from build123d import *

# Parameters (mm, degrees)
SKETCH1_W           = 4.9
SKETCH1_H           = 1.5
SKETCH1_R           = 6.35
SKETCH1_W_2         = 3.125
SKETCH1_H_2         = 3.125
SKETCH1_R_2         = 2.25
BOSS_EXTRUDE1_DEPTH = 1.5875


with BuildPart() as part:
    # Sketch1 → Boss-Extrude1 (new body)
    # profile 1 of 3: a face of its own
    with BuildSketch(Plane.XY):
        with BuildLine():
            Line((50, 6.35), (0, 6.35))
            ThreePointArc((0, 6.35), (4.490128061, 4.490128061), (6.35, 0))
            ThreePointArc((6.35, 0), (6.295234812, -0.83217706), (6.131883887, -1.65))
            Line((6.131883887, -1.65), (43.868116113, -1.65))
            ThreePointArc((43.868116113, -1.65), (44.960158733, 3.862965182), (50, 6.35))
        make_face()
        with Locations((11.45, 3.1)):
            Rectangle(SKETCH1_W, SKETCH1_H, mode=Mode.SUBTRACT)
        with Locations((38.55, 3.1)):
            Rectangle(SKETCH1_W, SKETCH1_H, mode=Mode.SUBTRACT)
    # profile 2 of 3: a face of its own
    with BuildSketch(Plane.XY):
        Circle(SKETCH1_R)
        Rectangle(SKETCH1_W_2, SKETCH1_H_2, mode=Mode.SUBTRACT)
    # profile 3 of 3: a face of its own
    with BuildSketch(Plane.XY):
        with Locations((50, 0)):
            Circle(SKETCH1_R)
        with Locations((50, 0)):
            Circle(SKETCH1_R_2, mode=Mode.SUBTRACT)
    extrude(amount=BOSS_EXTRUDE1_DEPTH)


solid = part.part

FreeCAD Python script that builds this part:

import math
import FreeCAD as App
import Part
import Sketcher


def add_polygon(sketch, points):
    """Adds a closed chain of lines whose ends are joined by coincident constraints."""
    first, n = sketch.GeometryCount, len(points)
    for a, b in zip(points, points[1:] + points[:1]):
        sketch.addGeometry(Part.LineSegment(App.Vector(*a, 0), App.Vector(*b, 0)), False)
    for i in range(n):
        sketch.addConstraint(Sketcher.Constraint("Coincident", first + i, 2, first + (i + 1) % n, 1))

doc = App.newDocument("Part")
body = doc.addObject("PartDesign::Body", "Body")

# Sketch on XY plane
sketch1 = body.newObject("Sketcher::SketchObject", "Sketch")
sketch1.AttachmentSupport = (doc.getObject("XY_Plane"), [""])
sketch1.MapMode = "FlatFace"
sketch1.addGeometry(Part.LineSegment(App.Vector(50, 6.35, 0), App.Vector(0, 6.35, 0)), False)  # 0
sketch1.addGeometry(Part.ArcOfCircle(Part.Circle(App.Vector(0, 0, 0), App.Vector(0, 0, 1), 6.35), math.radians(90), math.radians(344.939282)), False)  # 1
sketch1.addGeometry(Part.LineSegment(App.Vector(6.131884, -1.65, 0), App.Vector(43.868116, -1.65, 0)), False)  # 2
sketch1.addGeometry(Part.ArcOfCircle(Part.Circle(App.Vector(50, 0, 0), App.Vector(0, 0, 1), 6.35), math.radians(-164.939282), math.radians(90)), False)  # 3
add_polygon(sketch1, [(13.9, 2.35), (9, 2.35), (9, 3.85), (13.9, 3.85)])  # lines 4-7
add_polygon(sketch1, [(41, 2.35), (36.1, 2.35), (36.1, 3.85), (41, 3.85)])  # lines 8-11
sketch1.addGeometry(Part.Circle(App.Vector(50, 0, 0), App.Vector(0, 0, 1), 2.25), False)  # 12
add_polygon(sketch1, [(-1.5625, -1.5625), (-1.5625, 1.5625), (1.5625, 1.5625), (1.5625, -1.5625)])  # lines 13-16
sketch1.addConstraint(Sketcher.Constraint("Tangent", 0, 2, 1, 1))
sketch1.addConstraint(Sketcher.Constraint("Coincident", 1, 2, 2, 1))
sketch1.addConstraint(Sketcher.Constraint("Coincident", 2, 2, 3, 1))
sketch1.addConstraint(Sketcher.Constraint("Tangent", 3, 2, 0, 1))
sketch1.addConstraint(Sketcher.Constraint("Horizontal", 0))
sketch1.addConstraint(Sketcher.Constraint("Horizontal", 2))
sketch1.addConstraint(Sketcher.Constraint("Horizontal", 4))
sketch1.addConstraint(Sketcher.Constraint("Vertical", 5))
sketch1.addConstraint(Sketcher.Constraint("Horizontal", 6))
sketch1.addConstraint(Sketcher.Constraint("Vertical", 7))
sketch1.addConstraint(Sketcher.Constraint("Horizontal", 8))
sketch1.addConstraint(Sketcher.Constraint("Vertical", 9))
sketch1.addConstraint(Sketcher.Constraint("Horizontal", 10))
sketch1.addConstraint(Sketcher.Constraint("Vertical", 11))
sketch1.addConstraint(Sketcher.Constraint("Vertical", 13))
sketch1.addConstraint(Sketcher.Constraint("Horizontal", 14))
sketch1.addConstraint(Sketcher.Constraint("Vertical", 15))
sketch1.addConstraint(Sketcher.Constraint("Horizontal", 16))
sketch1.addConstraint(Sketcher.Constraint("Coincident", 1, 3, -1, 1))
sketch1.addConstraint(Sketcher.Constraint("Coincident", 12, 3, 3, 3))
sketch1.addConstraint(Sketcher.Constraint("Equal", 1, 3))
sketch1.addConstraint(Sketcher.Constraint("Symmetric", 13, 2, 15, 2, -1, 1))
sketch1.addConstraint(Sketcher.Constraint("Horizontal", 7, 2, 8, 2))
sketch1.addConstraint(Sketcher.Constraint("Horizontal", 6, 2, 9, 2))
sketch1.addConstraint(Sketcher.Constraint("Equal", 6, 8))
sketch1.addConstraint(Sketcher.Constraint("Equal", 16, 13))
sketch1.addConstraint(Sketcher.Constraint("Diameter", 12, 4.5))
sketch1.addConstraint(Sketcher.Constraint("DistanceX", 0, 2, 0, 1, 50.0))
sketch1.addConstraint(Sketcher.Constraint("Radius", 1, 6.35))
sketch1.addConstraint(Sketcher.Constraint("DistanceX", 4, 2, 4, 1, 4.9))
sketch1.addConstraint(Sketcher.Constraint("DistanceY", 5, 1, 5, 2, 1.5))
sketch1.addConstraint(Sketcher.Constraint("DistanceX", -1, 1, 4, 2, 9.0))
sketch1.addConstraint(Sketcher.Constraint("DistanceX", -1, 1, 10, 2, 41.0))
sketch1.addConstraint(Sketcher.Constraint("DistanceY", 1, 2, 0, 2, 8.0))
sketch1.addConstraint(Sketcher.Constraint("DistanceY", 1, 2, 4, 2, 4.0))
sketch1.addConstraint(Sketcher.Constraint("DistanceX", 14, 1, 14, 2, 3.125))
pad1 = body.newObject("PartDesign::Pad", "Pad")
pad1.Profile = sketch1
pad1.Length = 1.5875

doc.recompute()
